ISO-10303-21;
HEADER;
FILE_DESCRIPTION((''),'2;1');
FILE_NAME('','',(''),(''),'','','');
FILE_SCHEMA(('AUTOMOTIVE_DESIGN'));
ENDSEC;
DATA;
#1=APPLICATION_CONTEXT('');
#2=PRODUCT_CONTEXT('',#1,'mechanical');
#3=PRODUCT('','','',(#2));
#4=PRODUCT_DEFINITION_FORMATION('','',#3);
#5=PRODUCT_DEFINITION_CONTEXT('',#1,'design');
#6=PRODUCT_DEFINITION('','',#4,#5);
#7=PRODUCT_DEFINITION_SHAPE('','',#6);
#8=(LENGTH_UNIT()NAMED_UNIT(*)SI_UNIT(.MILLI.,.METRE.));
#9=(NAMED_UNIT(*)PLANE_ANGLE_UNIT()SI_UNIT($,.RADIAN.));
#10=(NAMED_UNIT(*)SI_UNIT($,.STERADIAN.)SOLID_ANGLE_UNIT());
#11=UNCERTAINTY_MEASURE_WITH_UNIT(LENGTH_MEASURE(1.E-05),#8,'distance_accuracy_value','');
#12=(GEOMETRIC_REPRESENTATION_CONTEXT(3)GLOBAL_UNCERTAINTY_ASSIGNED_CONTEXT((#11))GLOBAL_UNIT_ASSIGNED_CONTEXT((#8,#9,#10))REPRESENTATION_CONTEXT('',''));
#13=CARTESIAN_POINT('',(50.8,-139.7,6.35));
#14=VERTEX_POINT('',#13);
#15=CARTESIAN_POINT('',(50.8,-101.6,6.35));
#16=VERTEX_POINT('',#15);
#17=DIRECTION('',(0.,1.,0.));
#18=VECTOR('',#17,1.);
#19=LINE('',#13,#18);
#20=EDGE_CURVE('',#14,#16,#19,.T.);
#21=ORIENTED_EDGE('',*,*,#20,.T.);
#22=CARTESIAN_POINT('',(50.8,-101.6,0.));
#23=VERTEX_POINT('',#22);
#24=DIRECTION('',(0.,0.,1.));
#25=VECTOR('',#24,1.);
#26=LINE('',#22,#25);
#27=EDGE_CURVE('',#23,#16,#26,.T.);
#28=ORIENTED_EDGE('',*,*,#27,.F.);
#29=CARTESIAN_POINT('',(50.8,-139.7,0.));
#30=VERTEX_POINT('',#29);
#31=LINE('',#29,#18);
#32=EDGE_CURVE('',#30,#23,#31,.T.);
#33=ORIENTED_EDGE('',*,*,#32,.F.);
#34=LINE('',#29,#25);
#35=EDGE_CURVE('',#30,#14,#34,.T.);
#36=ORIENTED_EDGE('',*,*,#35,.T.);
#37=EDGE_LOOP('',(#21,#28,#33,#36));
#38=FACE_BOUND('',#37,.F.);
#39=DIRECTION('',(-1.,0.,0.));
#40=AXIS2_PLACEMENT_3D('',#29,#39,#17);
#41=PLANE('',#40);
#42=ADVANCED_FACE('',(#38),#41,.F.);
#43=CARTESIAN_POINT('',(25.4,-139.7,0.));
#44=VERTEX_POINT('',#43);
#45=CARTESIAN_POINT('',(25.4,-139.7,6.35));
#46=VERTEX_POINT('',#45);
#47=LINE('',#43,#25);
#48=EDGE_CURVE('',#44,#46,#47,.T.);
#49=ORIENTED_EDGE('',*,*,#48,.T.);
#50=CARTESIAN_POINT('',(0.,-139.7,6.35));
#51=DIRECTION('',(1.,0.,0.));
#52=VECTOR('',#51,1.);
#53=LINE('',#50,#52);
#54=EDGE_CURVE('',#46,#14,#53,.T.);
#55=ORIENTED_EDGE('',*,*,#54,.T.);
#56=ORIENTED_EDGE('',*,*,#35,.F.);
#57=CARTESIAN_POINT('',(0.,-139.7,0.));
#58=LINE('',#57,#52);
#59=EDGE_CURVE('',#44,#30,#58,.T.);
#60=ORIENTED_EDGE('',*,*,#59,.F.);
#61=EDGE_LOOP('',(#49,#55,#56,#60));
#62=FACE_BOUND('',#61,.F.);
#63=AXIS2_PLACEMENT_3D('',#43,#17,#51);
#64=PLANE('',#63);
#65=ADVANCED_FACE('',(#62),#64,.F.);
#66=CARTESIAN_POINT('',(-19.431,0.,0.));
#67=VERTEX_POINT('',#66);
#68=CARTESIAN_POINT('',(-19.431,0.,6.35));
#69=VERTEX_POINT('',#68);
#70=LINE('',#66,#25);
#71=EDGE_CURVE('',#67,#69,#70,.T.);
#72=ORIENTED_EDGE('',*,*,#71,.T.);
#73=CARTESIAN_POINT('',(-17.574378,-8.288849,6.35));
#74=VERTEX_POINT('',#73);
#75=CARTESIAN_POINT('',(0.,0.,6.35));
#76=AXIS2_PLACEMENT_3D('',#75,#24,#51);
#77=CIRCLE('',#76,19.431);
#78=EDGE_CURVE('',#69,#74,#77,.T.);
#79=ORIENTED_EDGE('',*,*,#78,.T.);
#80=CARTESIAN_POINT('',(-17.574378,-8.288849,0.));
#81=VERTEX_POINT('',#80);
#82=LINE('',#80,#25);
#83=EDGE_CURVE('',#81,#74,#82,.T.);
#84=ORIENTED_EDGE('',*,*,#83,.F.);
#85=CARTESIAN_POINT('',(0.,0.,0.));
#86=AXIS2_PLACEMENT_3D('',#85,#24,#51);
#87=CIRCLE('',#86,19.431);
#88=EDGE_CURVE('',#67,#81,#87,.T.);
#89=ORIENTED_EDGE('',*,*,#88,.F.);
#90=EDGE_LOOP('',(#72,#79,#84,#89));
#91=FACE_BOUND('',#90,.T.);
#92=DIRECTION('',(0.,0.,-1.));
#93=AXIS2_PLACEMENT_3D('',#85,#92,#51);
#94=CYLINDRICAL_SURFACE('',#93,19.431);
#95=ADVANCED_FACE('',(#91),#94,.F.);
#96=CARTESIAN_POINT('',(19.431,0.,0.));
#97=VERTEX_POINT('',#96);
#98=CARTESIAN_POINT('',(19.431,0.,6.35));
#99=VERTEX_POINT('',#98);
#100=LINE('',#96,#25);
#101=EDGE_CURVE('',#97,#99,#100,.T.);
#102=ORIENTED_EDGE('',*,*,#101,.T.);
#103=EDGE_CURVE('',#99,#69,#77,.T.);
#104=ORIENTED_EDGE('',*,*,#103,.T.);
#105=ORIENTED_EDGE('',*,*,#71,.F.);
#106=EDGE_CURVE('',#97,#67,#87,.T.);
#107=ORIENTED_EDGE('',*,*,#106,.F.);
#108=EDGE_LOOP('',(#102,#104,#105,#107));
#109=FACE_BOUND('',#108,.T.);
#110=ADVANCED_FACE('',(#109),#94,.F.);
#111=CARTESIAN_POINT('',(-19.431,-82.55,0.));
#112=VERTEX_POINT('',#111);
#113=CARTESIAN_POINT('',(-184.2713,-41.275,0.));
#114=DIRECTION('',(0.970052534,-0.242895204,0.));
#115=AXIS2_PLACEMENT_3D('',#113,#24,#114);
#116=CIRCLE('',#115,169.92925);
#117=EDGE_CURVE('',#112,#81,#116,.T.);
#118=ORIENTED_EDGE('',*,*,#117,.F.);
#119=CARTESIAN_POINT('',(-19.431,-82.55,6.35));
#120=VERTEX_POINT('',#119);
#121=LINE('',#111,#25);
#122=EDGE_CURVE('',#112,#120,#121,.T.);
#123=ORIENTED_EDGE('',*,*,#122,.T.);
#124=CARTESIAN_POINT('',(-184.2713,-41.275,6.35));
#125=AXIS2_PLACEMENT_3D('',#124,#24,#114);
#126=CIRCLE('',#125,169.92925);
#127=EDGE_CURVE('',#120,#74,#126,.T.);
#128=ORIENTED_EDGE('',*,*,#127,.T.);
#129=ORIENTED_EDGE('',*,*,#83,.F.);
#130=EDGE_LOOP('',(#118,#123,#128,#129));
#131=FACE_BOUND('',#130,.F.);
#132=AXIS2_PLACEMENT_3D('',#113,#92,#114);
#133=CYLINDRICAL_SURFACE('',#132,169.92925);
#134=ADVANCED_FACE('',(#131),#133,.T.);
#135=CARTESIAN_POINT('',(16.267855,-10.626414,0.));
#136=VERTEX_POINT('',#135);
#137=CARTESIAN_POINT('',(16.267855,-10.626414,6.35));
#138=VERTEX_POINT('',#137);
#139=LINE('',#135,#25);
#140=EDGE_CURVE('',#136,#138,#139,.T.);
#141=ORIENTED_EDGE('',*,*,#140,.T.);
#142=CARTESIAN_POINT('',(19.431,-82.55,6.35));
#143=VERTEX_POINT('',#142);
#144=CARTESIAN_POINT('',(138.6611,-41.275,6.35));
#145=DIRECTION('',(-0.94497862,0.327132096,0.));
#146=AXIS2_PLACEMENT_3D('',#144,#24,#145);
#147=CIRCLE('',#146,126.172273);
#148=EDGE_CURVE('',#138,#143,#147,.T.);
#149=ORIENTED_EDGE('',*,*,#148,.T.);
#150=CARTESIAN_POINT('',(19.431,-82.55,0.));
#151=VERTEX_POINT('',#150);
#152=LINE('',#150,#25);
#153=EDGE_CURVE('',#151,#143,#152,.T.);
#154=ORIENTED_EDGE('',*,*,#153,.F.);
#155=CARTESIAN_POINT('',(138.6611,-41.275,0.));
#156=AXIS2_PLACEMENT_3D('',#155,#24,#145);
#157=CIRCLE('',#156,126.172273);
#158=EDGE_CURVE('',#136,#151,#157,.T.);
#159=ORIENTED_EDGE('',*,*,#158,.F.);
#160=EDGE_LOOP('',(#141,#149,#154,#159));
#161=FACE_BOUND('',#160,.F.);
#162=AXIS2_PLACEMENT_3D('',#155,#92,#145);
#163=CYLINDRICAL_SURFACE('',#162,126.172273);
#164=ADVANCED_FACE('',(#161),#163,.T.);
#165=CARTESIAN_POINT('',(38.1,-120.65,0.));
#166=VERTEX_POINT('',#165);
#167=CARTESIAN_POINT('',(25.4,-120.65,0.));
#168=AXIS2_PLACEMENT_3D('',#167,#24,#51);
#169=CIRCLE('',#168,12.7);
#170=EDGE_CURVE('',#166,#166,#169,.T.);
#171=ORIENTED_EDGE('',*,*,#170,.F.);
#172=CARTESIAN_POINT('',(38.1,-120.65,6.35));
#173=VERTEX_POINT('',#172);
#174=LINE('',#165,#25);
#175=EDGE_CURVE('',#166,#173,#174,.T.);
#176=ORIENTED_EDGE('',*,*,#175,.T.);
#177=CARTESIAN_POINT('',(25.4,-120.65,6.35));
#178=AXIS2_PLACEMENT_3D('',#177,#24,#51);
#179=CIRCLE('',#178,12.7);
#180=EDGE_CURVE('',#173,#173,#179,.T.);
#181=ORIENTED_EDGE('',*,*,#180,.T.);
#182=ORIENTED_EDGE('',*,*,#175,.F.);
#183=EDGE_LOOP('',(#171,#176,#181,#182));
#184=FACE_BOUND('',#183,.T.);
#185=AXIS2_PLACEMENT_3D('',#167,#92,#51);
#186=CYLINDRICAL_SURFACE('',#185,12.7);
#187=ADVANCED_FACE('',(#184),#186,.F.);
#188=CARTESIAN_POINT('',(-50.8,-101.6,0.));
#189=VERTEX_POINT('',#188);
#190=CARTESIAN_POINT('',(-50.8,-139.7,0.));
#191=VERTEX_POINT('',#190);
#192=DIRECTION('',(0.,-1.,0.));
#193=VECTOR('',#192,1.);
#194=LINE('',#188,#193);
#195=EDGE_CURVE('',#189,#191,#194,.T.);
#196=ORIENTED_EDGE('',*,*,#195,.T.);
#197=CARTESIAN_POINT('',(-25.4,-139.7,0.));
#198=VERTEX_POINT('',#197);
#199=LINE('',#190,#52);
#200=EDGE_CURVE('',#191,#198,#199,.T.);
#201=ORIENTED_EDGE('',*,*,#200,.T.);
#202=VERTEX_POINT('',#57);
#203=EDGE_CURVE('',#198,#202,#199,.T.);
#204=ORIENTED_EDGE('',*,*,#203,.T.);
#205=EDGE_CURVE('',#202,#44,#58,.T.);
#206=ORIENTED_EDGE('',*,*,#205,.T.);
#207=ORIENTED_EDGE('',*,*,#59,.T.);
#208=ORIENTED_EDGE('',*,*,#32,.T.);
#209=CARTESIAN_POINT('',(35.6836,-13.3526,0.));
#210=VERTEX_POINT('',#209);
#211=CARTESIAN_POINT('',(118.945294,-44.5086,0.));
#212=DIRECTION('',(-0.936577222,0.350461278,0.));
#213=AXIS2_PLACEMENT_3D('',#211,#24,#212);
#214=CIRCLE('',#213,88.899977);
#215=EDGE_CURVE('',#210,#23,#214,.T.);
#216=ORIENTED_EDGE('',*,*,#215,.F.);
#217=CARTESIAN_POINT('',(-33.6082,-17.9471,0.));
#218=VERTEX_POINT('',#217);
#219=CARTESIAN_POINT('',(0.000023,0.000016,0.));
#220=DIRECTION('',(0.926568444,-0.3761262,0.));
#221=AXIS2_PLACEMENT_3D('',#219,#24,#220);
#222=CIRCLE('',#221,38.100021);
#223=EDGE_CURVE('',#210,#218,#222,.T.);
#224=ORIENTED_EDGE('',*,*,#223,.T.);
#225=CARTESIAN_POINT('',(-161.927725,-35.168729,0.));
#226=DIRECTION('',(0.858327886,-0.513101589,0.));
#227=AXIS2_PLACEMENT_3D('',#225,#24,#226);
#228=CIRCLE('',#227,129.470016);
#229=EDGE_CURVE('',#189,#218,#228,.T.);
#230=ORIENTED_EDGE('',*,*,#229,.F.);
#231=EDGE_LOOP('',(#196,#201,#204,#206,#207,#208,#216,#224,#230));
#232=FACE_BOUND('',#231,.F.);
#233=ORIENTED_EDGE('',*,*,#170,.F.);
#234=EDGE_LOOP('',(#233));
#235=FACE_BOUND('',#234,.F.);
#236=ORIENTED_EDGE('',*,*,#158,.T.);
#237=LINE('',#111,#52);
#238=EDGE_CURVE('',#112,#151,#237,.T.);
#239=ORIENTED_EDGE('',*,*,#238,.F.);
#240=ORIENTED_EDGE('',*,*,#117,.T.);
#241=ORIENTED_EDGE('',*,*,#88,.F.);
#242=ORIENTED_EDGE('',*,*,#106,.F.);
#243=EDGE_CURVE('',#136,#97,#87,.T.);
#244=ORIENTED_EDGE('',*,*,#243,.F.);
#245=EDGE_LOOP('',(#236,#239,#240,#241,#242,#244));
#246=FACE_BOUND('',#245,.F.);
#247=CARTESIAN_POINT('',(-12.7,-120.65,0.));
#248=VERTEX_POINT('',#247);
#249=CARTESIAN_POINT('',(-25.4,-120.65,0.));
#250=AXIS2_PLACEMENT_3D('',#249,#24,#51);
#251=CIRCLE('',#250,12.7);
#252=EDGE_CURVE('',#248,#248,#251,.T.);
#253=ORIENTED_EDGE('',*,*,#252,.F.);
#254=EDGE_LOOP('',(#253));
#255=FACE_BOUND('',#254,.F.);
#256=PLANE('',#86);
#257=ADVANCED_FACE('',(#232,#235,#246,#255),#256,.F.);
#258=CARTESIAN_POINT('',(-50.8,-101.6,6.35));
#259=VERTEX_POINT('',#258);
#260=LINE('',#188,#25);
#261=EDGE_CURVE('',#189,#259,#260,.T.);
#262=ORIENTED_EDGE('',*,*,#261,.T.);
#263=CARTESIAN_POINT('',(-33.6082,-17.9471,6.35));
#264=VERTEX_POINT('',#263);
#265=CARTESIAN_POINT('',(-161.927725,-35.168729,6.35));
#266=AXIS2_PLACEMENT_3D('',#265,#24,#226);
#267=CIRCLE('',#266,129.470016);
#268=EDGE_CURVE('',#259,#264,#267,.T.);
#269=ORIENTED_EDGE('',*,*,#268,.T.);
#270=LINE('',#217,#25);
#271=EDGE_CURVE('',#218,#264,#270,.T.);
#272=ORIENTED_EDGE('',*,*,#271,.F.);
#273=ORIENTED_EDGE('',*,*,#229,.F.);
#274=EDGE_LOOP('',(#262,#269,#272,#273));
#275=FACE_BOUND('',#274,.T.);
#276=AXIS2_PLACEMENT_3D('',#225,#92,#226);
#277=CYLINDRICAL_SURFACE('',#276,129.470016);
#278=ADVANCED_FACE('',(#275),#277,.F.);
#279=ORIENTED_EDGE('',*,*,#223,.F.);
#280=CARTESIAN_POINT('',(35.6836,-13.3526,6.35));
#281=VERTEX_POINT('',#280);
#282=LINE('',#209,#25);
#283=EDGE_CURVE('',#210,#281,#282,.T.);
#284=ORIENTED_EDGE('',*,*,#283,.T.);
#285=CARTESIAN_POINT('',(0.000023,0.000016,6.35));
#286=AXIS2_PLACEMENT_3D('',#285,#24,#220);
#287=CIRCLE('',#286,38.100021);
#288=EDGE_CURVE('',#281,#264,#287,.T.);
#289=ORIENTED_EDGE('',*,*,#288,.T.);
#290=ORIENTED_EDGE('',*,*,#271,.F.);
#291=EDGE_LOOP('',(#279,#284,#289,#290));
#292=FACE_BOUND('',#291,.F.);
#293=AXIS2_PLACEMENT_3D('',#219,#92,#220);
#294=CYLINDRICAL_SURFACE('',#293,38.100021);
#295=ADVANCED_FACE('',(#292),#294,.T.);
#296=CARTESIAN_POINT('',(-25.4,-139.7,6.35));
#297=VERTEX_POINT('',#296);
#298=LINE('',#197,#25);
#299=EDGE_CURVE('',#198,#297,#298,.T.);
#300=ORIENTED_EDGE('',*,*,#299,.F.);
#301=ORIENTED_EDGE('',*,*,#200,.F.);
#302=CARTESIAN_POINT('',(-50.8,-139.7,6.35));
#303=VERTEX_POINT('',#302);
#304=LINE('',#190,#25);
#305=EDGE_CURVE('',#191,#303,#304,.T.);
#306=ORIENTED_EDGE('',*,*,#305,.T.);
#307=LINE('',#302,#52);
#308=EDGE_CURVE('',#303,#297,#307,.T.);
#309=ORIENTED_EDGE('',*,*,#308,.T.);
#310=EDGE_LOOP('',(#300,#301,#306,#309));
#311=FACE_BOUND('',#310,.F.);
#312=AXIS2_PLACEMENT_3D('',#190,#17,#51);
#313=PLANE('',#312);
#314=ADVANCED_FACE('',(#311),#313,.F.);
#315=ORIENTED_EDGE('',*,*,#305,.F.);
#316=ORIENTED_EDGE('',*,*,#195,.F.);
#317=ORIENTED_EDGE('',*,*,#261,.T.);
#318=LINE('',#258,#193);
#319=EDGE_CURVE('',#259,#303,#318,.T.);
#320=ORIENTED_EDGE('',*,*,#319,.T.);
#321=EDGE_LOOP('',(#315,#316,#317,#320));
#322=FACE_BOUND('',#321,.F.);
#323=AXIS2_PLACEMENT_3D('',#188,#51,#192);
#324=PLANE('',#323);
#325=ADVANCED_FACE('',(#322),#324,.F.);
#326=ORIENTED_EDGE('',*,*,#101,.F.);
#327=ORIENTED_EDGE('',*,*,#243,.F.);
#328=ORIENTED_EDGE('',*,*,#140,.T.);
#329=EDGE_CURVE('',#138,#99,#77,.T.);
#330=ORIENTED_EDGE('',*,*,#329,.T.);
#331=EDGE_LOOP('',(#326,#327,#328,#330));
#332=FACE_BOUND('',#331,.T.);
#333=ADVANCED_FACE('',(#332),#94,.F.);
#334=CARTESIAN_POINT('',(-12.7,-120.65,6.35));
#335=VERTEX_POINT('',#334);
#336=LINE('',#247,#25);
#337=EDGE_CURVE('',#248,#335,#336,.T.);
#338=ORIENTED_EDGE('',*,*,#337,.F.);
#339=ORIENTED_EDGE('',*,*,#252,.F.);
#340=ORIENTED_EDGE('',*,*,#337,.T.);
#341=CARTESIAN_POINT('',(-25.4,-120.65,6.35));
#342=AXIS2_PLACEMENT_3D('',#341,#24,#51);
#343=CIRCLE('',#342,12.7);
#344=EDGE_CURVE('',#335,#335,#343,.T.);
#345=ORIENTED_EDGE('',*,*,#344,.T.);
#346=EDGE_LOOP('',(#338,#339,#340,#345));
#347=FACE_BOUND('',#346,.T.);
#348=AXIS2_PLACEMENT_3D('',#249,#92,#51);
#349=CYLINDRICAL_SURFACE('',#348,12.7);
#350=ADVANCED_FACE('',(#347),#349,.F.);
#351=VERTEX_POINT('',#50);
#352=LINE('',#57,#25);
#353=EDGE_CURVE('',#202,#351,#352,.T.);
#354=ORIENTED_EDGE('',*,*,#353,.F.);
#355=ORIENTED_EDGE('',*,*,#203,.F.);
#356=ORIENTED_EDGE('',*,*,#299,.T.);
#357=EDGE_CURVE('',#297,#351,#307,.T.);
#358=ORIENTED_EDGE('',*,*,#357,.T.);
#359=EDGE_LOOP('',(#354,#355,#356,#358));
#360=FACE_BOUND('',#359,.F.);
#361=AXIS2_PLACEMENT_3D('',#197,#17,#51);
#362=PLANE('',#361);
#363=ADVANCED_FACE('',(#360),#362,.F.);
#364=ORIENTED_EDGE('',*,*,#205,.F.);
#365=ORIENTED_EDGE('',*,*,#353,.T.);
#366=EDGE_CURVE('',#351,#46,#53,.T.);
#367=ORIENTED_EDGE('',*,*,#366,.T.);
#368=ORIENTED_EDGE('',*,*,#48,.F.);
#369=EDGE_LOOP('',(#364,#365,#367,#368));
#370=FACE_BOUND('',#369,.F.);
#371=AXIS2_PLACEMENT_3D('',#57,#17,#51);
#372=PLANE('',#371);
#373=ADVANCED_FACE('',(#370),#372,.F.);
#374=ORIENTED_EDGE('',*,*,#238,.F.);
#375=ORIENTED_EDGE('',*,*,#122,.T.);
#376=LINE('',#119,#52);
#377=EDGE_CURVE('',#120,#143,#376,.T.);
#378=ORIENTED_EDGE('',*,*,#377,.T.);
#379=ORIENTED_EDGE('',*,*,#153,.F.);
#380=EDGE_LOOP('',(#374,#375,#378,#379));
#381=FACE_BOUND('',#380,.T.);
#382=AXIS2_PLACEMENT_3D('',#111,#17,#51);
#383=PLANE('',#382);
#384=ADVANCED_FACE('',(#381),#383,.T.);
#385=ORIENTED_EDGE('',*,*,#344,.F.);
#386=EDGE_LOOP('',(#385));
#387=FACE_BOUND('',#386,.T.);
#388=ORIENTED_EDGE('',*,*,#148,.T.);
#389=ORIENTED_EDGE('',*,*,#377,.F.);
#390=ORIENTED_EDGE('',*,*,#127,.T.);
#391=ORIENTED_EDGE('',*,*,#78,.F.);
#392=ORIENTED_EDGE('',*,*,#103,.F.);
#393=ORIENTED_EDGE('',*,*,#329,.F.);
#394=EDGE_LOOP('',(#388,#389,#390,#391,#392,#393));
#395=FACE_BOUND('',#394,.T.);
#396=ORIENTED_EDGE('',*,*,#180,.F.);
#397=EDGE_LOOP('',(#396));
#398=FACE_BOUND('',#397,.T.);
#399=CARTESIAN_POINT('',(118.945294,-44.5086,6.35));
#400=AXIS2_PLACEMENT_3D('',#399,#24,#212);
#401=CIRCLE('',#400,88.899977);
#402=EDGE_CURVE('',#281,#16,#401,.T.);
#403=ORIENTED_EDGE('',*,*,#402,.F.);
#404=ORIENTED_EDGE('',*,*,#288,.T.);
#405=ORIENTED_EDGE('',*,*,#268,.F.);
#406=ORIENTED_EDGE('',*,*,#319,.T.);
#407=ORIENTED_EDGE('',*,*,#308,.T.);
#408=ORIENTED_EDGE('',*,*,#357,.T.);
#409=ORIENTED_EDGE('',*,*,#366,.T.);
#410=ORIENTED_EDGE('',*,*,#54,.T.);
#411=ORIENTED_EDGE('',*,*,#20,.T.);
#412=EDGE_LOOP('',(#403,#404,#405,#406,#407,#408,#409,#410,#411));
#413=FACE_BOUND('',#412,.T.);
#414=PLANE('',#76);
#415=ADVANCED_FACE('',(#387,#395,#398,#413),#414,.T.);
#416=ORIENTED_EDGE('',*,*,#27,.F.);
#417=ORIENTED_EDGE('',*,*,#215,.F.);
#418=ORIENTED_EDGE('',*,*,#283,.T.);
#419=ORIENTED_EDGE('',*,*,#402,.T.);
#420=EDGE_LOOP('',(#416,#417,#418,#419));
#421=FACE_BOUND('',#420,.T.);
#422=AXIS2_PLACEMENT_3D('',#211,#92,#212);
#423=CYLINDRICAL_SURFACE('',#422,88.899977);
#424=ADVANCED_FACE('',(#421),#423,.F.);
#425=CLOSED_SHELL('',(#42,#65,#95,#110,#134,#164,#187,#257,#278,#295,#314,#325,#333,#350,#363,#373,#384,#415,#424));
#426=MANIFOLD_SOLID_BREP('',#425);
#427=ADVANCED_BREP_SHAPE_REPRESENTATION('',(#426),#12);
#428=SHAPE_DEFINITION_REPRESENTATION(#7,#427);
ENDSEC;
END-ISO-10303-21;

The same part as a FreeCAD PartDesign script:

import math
import FreeCAD as App
import Part
import Sketcher
Q = App.Units.Quantity

doc = App.newDocument("Part")
body = doc.addObject("PartDesign::Body", "Body")

sketch1 = body.newObject("Sketcher::SketchObject", "Sketch")
sketch1.AttachmentSupport = (doc.getObject("XY_Plane"), [""])
sketch1.MapMode = "FlatFace"
sketch1.addGeometry(Part.ArcOfCircle(Part.Circle(App.Vector(118.9453, -44.5086, 0), App.Vector(0, 0, 1), 88.899983), math.radians(159.48447), math.radians(219.955913)), False)
sketch1.addGeometry(Part.ArcOfCircle(Part.Circle(App.Vector(0, 0, 0), App.Vector(0, 0, 1), 38.100036), math.radians(-20.515563), math.radians(208.102643)), False)
sketch1.addGeometry(Part.ArcOfCircle(Part.Circle(App.Vector(-161.9278, -35.1687, 0), App.Vector(0, 0, 1), 129.470095), math.radians(-30.870641), math.radians(7.643914)), False)
sketch1.addGeometry(Part.LineSegment(App.Vector(-50.8, -101.6, 0), App.Vector(-50.8, -139.7, 0)), False)
sketch1.addGeometry(Part.LineSegment(App.Vector(-50.8, -139.7, 0), App.Vector(50.8, -139.7, 0)), False)
sketch1.addGeometry(Part.LineSegment(App.Vector(50.8, -139.7, 0), App.Vector(50.8, -101.6, 0)), False)
sketch1.addGeometry(Part.Circle(App.Vector(-25.4, -120.65, 0), App.Vector(0, 0, 1), 12.7), False)
sketch1.addGeometry(Part.Circle(App.Vector(25.4, -120.65, 0), App.Vector(0, 0, 1), 12.7), False)
sketch1.addGeometry(Part.ArcOfCircle(Part.Circle(App.Vector(0, 0, 0), App.Vector(0, 0, 1), 19.431), math.radians(-33.15319), math.radians(205.250625)), False)
sketch1.addGeometry(Part.ArcOfCircle(Part.Circle(App.Vector(138.6611, -41.275, 0), App.Vector(0, 0, 1), 126.172273), math.radians(165.941608), math.radians(199.094798)), False)
sketch1.addGeometry(Part.LineSegment(App.Vector(19.431, -82.55, 0), App.Vector(-19.431, -82.55, 0)), False)
sketch1.addGeometry(Part.ArcOfCircle(Part.Circle(App.Vector(-184.2713, -41.275, 0), App.Vector(0, 0, 1), 169.92925), math.radians(-14.057481), math.radians(11.193144)), False)
sketch1.addConstraint(Sketcher.Constraint("Tangent", 0, 1, 1, 1))
sketch1.addConstraint(Sketcher.Constraint("Coincident", 1, 2, 2, 2))
sketch1.addConstraint(Sketcher.Constraint("Coincident", 2, 1, 3, 1))
sketch1.addConstraint(Sketcher.Constraint("Coincident", 3, 2, 4, 1))
sketch1.addConstraint(Sketcher.Constraint("Coincident", 4, 2, 5, 1))
sketch1.addConstraint(Sketcher.Constraint("Coincident", 5, 2, 0, 2))
sketch1.addConstraint(Sketcher.Constraint("Coincident", 8, 1, 9, 1))
sketch1.addConstraint(Sketcher.Constraint("Coincident", 9, 2, 10, 1))
sketch1.addConstraint(Sketcher.Constraint("Coincident", 10, 2, 11, 1))
sketch1.addConstraint(Sketcher.Constraint("Coincident", 11, 2, 8, 2))
sketch1.addConstraint(Sketcher.Constraint("Vertical", 3))
sketch1.addConstraint(Sketcher.Constraint("Horizontal", 4))
sketch1.addConstraint(Sketcher.Constraint("Vertical", 5))
sketch1.addConstraint(Sketcher.Constraint("Horizontal", 10))
sketch1.addConstraint(Sketcher.Constraint("Coincident", 1, 3, -1, 1))
sketch1.addConstraint(Sketcher.Constraint("Coincident", 8, 3, -1, 1))
sketch1.addConstraint(Sketcher.Constraint("Equal", 6, 7))
sketch1.addConstraint(Sketcher.Constraint("Symmetric", 6, 3, 7, 3, -2))
sketch1.addConstraint(Sketcher.Constraint("Symmetric", 2, 1, 5, 2, -2))
sketch1.addConstraint(Sketcher.Constraint("Horizontal", 9, 3, 11, 3))
sketch1.addConstraint(Sketcher.Constraint("Diameter", 6, Q("1 in")))
sketch1.addConstraint(Sketcher.Constraint("Radius", 0, Q("3.5 in")))
sketch1.addConstraint(Sketcher.Constraint("Radius", 1, Q("1.5 in")))
sketch1.addConstraint(Sketcher.Constraint("DistanceX", 4, 1, 4, 2, Q("4 in")))
sketch1.addConstraint(Sketcher.Constraint("DistanceY", 3, 2, 3, 1, Q("1.5 in")))
sketch1.addConstraint(Sketcher.Constraint("DistanceX", 6, 3, -1, 1, Q("1 in")))
sketch1.addConstraint(Sketcher.Constraint("DistanceY", 2, 1, -1, 1, Q("4 in")))
sketch1.addConstraint(Sketcher.Constraint("Radius", 8, Q("0.765 in")))
sketch1.addConstraint(Sketcher.Constraint("DistanceX", 10, 2, 10, 1, Q("1.53 in")))
sketch1.addConstraint(Sketcher.Constraint("DistanceY", 7, 3, 9, 2, Q("1.5 in")))
sketch1.addConstraint(Sketcher.Constraint("DistanceY", 6, 3, -1, 1, Q("4.75 in")))
sketch1.addConstraint(Sketcher.Constraint("Radius", 2, Q("129.47 mm")))
sketch1.addConstraint(Sketcher.Constraint("Radius", 9, Q("126.1723 mm")))
sketch1.addConstraint(Sketcher.Constraint("Radius", 11, Q("169.9293 mm")))
sketch1.addConstraint(Sketcher.Constraint("DistanceY", 9, 3, -1, 1, Q("1.625 in")))
sketch1.addConstraint(Sketcher.Constraint("DistanceX", -1, 1, 9, 2, Q("0.765 in")))
sketch1.addConstraint(Sketcher.Constraint("DistanceX", 2, 3, 0, 3, Q("11.058 in")))
pad1 = body.newObject("PartDesign::Pad", "Pad")
pad1.Profile = sketch1
pad1.Length = Q("0.25 in")

doc.recompute()
